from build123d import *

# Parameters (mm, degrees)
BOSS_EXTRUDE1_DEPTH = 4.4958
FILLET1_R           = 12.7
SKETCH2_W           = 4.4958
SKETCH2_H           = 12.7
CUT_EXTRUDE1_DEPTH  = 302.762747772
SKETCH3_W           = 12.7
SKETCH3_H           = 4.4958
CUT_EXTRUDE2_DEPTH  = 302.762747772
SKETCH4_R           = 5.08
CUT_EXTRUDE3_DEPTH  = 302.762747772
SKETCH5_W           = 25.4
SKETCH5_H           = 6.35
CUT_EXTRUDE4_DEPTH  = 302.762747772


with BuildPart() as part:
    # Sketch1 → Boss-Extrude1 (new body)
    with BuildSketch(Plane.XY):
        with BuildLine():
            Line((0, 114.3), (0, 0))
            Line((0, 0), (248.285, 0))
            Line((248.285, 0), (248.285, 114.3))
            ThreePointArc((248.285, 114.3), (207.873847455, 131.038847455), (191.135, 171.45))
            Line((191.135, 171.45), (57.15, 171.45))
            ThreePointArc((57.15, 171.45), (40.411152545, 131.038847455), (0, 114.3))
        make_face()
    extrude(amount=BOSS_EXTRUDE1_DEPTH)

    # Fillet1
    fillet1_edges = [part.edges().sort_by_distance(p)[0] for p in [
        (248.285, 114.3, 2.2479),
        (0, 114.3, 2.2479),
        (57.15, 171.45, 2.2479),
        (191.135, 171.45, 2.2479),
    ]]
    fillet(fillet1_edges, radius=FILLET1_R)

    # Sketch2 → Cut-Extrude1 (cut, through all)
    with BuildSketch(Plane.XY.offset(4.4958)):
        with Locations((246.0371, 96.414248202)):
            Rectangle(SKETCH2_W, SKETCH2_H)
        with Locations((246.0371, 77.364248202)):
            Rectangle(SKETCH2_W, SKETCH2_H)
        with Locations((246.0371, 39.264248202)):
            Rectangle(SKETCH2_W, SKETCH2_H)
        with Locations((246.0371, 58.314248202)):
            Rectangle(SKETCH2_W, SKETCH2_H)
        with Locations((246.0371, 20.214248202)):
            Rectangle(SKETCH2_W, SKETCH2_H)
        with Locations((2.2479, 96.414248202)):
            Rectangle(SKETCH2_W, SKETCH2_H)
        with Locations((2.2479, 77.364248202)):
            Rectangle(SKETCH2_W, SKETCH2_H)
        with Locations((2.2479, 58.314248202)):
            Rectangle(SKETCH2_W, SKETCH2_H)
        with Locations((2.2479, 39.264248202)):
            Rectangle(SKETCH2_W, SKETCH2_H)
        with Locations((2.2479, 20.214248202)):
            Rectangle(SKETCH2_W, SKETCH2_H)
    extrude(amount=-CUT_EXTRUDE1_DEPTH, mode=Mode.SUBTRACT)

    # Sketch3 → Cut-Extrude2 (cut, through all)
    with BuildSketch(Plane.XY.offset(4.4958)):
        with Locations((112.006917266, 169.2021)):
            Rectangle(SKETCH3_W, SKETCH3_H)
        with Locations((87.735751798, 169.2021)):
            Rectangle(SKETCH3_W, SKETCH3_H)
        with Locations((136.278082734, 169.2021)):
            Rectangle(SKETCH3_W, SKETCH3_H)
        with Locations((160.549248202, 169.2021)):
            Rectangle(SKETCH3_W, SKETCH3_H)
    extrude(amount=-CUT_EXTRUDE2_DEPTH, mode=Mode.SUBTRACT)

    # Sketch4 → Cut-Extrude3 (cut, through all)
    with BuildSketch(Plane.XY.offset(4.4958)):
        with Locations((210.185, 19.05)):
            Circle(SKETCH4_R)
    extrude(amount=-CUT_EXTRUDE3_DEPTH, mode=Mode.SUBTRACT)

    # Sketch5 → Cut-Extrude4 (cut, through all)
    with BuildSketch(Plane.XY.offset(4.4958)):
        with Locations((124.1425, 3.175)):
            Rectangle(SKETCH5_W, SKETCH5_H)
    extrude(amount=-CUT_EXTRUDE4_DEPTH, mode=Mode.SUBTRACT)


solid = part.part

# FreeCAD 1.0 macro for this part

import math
import FreeCAD as App
import Part
import Sketcher
Q = App.Units.Quantity


def edges_at(feature, points):
    """Names of the edges that pass closest to the given points."""
    edges = feature.Shape.Edges
    near = lambda p: min(range(len(edges)), key=lambda i: edges[i].distToShape(Part.Vertex(*p))[0])
    return sorted({f"Edge{near(p) + 1}" for p in points})


def add_polygon(sketch, points):
    """Adds a closed chain of lines whose ends are joined by coincident constraints."""
    first, n = sketch.GeometryCount, len(points)
    for a, b in zip(points, points[1:] + points[:1]):
        sketch.addGeometry(Part.LineSegment(App.Vector(*a, 0), App.Vector(*b, 0)), False)
    for i in range(n):
        sketch.addConstraint(Sketcher.Constraint("Coincident", first + i, 2, first + (i + 1) % n, 1))

doc = App.newDocument("Part")
body = doc.addObject("PartDesign::Body", "Body")

# Sketch on XY plane
sketch1 = body.newObject("Sketcher::SketchObject", "Sketch")
sketch1.AttachmentSupport = (doc.getObject("XY_Plane"), [""])
sketch1.MapMode = "FlatFace"
sketch1.addGeometry([
    Part.LineSegment(App.Vector(0, 114.3, 0), App.Vector(0, 0, 0)),  # 0
    Part.LineSegment(App.Vector(0, 0, 0), App.Vector(248.285, 0, 0)),  # 1
    Part.LineSegment(App.Vector(248.285, 0, 0), App.Vector(248.285, 114.3, 0)),  # 2
    Part.ArcOfCircle(Part.Circle(App.Vector(248.285, 171.45, 0), App.Vector(0, 0, 1), 57.15), math.radians(180), math.radians(270)),  # 3
    Part.LineSegment(App.Vector(191.135, 171.45, 0), App.Vector(57.15, 171.45, 0)),  # 4
    Part.ArcOfCircle(Part.Circle(App.Vector(0, 171.45, 0), App.Vector(0, 0, 1), 57.15), math.radians(-90), math.radians(0)),  # 5
], False)
sketch1.addConstraint([
    Sketcher.Constraint("Coincident", 0, 2, 1, 1),
    Sketcher.Constraint("Coincident", 1, 2, 2, 1),
    Sketcher.Constraint("Coincident", 2, 2, 3, 2),
    Sketcher.Constraint("Coincident", 3, 1, 4, 1),
    Sketcher.Constraint("Coincident", 4, 2, 5, 2),
    Sketcher.Constraint("Coincident", 5, 1, 0, 1),
    Sketcher.Constraint("Vertical", 0),
    Sketcher.Constraint("Horizontal", 1),
    Sketcher.Constraint("Vertical", 2),
    Sketcher.Constraint("Horizontal", 4),
    Sketcher.Constraint("Coincident", 0, 2, -1, 1),
    Sketcher.Constraint("Equal", 3, 5),
    Sketcher.Constraint("PointOnObject", 5, 3, -2),
    Sketcher.Constraint("Horizontal", 3, 3, 5, 3),
    Sketcher.Constraint("Horizontal", 5, 3, 3, 1),
    Sketcher.Constraint("Vertical", 3, 3, 1, 2),
    Sketcher.Constraint("Radius", 3, Q("2.25 in")),
    Sketcher.Constraint("DistanceY", 0, 2, 0, 1, Q("4.5 in")),
    Sketcher.Constraint("DistanceX", 1, 1, 1, 2, Q("9.775 in")),
])
pad1 = body.newObject("PartDesign::Pad", "Pad")
pad1.Profile = sketch1
pad1.Length = Q("0.177 in")
doc.recompute()

fillet = body.newObject("PartDesign::Fillet", "Fillet")
fillet.Base = (pad1, edges_at(pad1, [
    (248.285, 114.3, 2.248),
    (0, 114.3, 2.248),
    (57.15, 171.45, 2.248),
    (191.135, 171.45, 2.248),
]))
fillet.Radius = Q("0.5 in")

# Sketch on XY plane
sketch2 = body.newObject("Sketcher::SketchObject", "Sketch001")
sketch2.AttachmentSupport = (doc.getObject("XY_Plane"), [""])
sketch2.MapMode = "FlatFace"
sketch2.AttachmentOffset = App.Placement(App.Vector(0, 0, 0.177 * 25.4), App.Rotation())
add_polygon(sketch2, [(243.7892, 102.764248), (243.7892, 90.064248), (248.285, 90.064248), (248.285, 102.764248)])  # lines 0-3
add_polygon(sketch2, [(243.7892, 83.714248), (243.7892, 71.014248), (248.285, 71.014248), (248.285, 83.714248)])  # lines 4-7
add_polygon(sketch2, [(243.7892, 45.614248), (243.7892, 32.914248), (248.285, 32.914248), (248.285, 45.614248)])  # lines 8-11
add_polygon(sketch2, [(243.7892, 64.664248), (243.7892, 51.964248), (248.285, 51.964248), (248.285, 64.664248)])  # lines 12-15
add_polygon(sketch2, [(243.7892, 26.564248), (243.7892, 13.864248), (248.285, 13.864248), (248.285, 26.564248)])  # lines 16-19
add_polygon(sketch2, [(0, 102.764248), (0, 90.064248), (4.4958, 90.064248), (4.4958, 102.764248)])  # lines 20-23
add_polygon(sketch2, [(0, 83.714248), (0, 71.014248), (4.4958, 71.014248), (4.4958, 83.714248)])  # lines 24-27
add_polygon(sketch2, [(0, 64.664248), (0, 51.964248), (4.4958, 51.964248), (4.4958, 64.664248)])  # lines 28-31
add_polygon(sketch2, [(0, 45.614248), (0, 32.914248), (4.4958, 32.914248), (4.4958, 45.614248)])  # lines 32-35
add_polygon(sketch2, [(0, 26.564248), (0, 13.864248), (4.4958, 13.864248), (4.4958, 26.564248)])  # lines 36-39
sketch2.addConstraint([
    Sketcher.Constraint("Vertical", 0),
    Sketcher.Constraint("Horizontal", 1),
    Sketcher.Constraint("Vertical", 2),
    Sketcher.Constraint("Horizontal", 3),
    Sketcher.Constraint("Vertical", 4),
    Sketcher.Constraint("Horizontal", 5),
    Sketcher.Constraint("Vertical", 6),
    Sketcher.Constraint("Horizontal", 7),
    Sketcher.Constraint("Vertical", 8),
    Sketcher.Constraint("Horizontal", 9),
    Sketcher.Constraint("Vertical", 10),
    Sketcher.Constraint("Horizontal", 11),
    Sketcher.Constraint("Vertical", 12),
    Sketcher.Constraint("Horizontal", 13),
    Sketcher.Constraint("Vertical", 14),
    Sketcher.Constraint("Horizontal", 15),
    Sketcher.Constraint("Vertical", 16),
    Sketcher.Constraint("Horizontal", 17),
    Sketcher.Constraint("Vertical", 18),
    Sketcher.Constraint("Horizontal", 19),
    Sketcher.Constraint("Vertical", 20),
    Sketcher.Constraint("Horizontal", 21),
    Sketcher.Constraint("Vertical", 22),
    Sketcher.Constraint("Horizontal", 23),
    Sketcher.Constraint("Vertical", 24),
    Sketcher.Constraint("Horizontal", 25),
    Sketcher.Constraint("Vertical", 26),
    Sketcher.Constraint("Horizontal", 27),
    Sketcher.Constraint("Vertical", 28),
    Sketcher.Constraint("Horizontal", 29),
    Sketcher.Constraint("Vertical", 30),
    Sketcher.Constraint("Horizontal", 31),
    Sketcher.Constraint("Vertical", 32),
    Sketcher.Constraint("Horizontal", 33),
    Sketcher.Constraint("Vertical", 34),
    Sketcher.Constraint("Horizontal", 35),
    Sketcher.Constraint("Vertical", 36),
    Sketcher.Constraint("Horizontal", 37),
    Sketcher.Constraint("Vertical", 38),
    Sketcher.Constraint("Horizontal", 39),
    Sketcher.Constraint("PointOnObject", 20, 2, -2),
    Sketcher.Constraint("PointOnObject", 24, 2, -2),
    Sketcher.Constraint("PointOnObject", 28, 2, -2),
    Sketcher.Constraint("PointOnObject", 32, 2, -2),
    Sketcher.Constraint("PointOnObject", 36, 2, -2),
    Sketcher.Constraint("Horizontal", 1, 2, 20, 2),
    Sketcher.Constraint("Horizontal", 3, 2, 22, 2),
    Sketcher.Constraint("Horizontal", 5, 2, 24, 2),
    Sketcher.Constraint("Horizontal", 7, 2, 26, 2),
    Sketcher.Constraint("Horizontal", 13, 2, 28, 2),
    Sketcher.Constraint("Horizontal", 15, 2, 30, 2),
    Sketcher.Constraint("Horizontal", 9, 2, 32, 2),
    Sketcher.Constraint("Horizontal", 11, 2, 34, 2),
    Sketcher.Constraint("Horizontal", 17, 2, 36, 2),
    Sketcher.Constraint("Horizontal", 19, 2, 38, 2),
    Sketcher.Constraint("Vertical", 3, 2, 4, 2),
    Sketcher.Constraint("Vertical", 2, 2, 5, 2),
    Sketcher.Constraint("Vertical", 7, 2, 8, 2),
    Sketcher.Constraint("Vertical", 6, 2, 9, 2),
    Sketcher.Constraint("Vertical", 11, 2, 12, 2),
    Sketcher.Constraint("Vertical", 10, 2, 13, 2),
    Sketcher.Constraint("Vertical", 15, 2, 16, 2),
    Sketcher.Constraint("Vertical", 14, 2, 17, 2),
    Sketcher.Constraint("Vertical", 22, 2, 25, 2),
    Sketcher.Constraint("Vertical", 26, 2, 29, 2),
    Sketcher.Constraint("Vertical", 30, 2, 33, 2),
    Sketcher.Constraint("Vertical", 34, 2, 37, 2),
    Sketcher.Constraint("Equal", 19, 21),
    Sketcher.Constraint("Equal", 2, 4),
    Sketcher.Constraint("Equal", 6, 8),
    Sketcher.Constraint("Equal", 10, 12),
    Sketcher.Constraint("Equal", 14, 16),
    Sketcher.Constraint("DistanceY", 0, 2, 0, 1, Q("0.5 in")),
    Sketcher.Constraint("DistanceY", 8, 2, 7, 2, Q("2 in")),
    Sketcher.Constraint("DistanceY", 15, 2, 20, 2, Q("1 in")),
    Sketcher.Constraint("DistanceY", 16, 2, 12, 2, Q("1.5 in")),
    Sketcher.Constraint("DistanceX", 1, 1, 1, 2, Q("0.177 in")),
    Sketcher.Constraint("DistanceY", 4, 2, 0, 2, Q("0.75 in")),
    Sketcher.Constraint("DistanceX", -1, 1, 0, 2, Q("9.598 in")),
    Sketcher.Constraint("DistanceY", -1, 1, 0, 2, 90.064248),
])
pocket1 = body.newObject("PartDesign::Pocket", "Pocket")
pocket1.Profile = sketch2
pocket1.Type = "ThroughAll"

# Sketch on XY plane
sketch3 = body.newObject("Sketcher::SketchObject", "Sketch002")
sketch3.AttachmentSupport = (doc.getObject("XY_Plane"), [""])
sketch3.MapMode = "FlatFace"
sketch3.AttachmentOffset = App.Placement(App.Vector(0, 0, 0.177 * 25.4), App.Rotation())
add_polygon(sketch3, [(105.656917, 171.45), (105.656917, 166.9542), (118.356917, 166.9542), (118.356917, 171.45)])  # lines 0-3
add_polygon(sketch3, [(81.385752, 171.45), (81.385752, 166.9542), (94.085752, 166.9542), (94.085752, 171.45)])  # lines 4-7
add_polygon(sketch3, [(129.928083, 171.45), (129.928083, 166.9542), (142.628083, 166.9542), (142.628083, 171.45)])  # lines 8-11
add_polygon(sketch3, [(154.199248, 171.45), (154.199248, 166.9542), (166.899248, 166.9542), (166.899248, 171.45)])  # lines 12-15
sketch3.addConstraint([
    Sketcher.Constraint("Vertical", 0),
    Sketcher.Constraint("Horizontal", 1),
    Sketcher.Constraint("Vertical", 2),
    Sketcher.Constraint("Horizontal", 3),
    Sketcher.Constraint("Vertical", 4),
    Sketcher.Constraint("Horizontal", 5),
    Sketcher.Constraint("Vertical", 6),
    Sketcher.Constraint("Horizontal", 7),
    Sketcher.Constraint("Vertical", 8),
    Sketcher.Constraint("Horizontal", 9),
    Sketcher.Constraint("Vertical", 10),
    Sketcher.Constraint("Horizontal", 11),
    Sketcher.Constraint("Vertical", 12),
    Sketcher.Constraint("Horizontal", 13),
    Sketcher.Constraint("Vertical", 14),
    Sketcher.Constraint("Horizontal", 15),
    Sketcher.Constraint("Horizontal", 1, 2, 4, 2),
    Sketcher.Constraint("Horizontal", 3, 2, 6, 2),
    Sketcher.Constraint("Horizontal", 5, 2, 8, 2),
    Sketcher.Constraint("Horizontal", 7, 2, 10, 2),
    Sketcher.Constraint("Horizontal", 9, 2, 12, 2),
    Sketcher.Constraint("Horizontal", 11, 2, 14, 2),
    Sketcher.Constraint("Equal", 3, 5),
    Sketcher.Constraint("Equal", 7, 9),
    Sketcher.Constraint("Equal", 11, 13),
    Sketcher.Constraint("DistanceX", 1, 1, 1, 2, Q("0.5 in")),
    Sketcher.Constraint("DistanceY", 0, 2, 0, 1, Q("0.177 in")),
    Sketcher.Constraint("DistanceY", -1, 1, 2, 2, Q("6.75 in")),
    Sketcher.Constraint("DistanceX", -1, 1, 4, 2, 81.385752),
    Sketcher.Constraint("DistanceX", -1, 1, 12, 2, 154.199248),
    Sketcher.Constraint("DistanceX", 5, 2, 8, 2, 35.842331),
    Sketcher.Constraint("DistanceX", 1, 2, 12, 2, 35.842331),
])
pocket2 = body.newObject("PartDesign::Pocket", "Pocket001")
pocket2.Profile = sketch3
pocket2.Type = "ThroughAll"

# Sketch on XY plane
sketch4 = body.newObject("Sketcher::SketchObject", "Sketch003")
sketch4.AttachmentSupport = (doc.getObject("XY_Plane"), [""])
sketch4.MapMode = "FlatFace"
sketch4.AttachmentOffset = App.Placement(App.Vector(0, 0, 0.177 * 25.4), App.Rotation())
sketch4.addGeometry(Part.Circle(App.Vector(210.185, 19.05, 0), App.Vector(0, 0, 1), 5.08), False)
sketch4.addConstraint([
    Sketcher.Constraint("Diameter", 0, Q("0.4 in")),
    Sketcher.Constraint("DistanceY", -1, 1, 0, 3, Q("0.75 in")),
    Sketcher.Constraint("DistanceX", -1, 1, 0, 3, Q("8.275 in")),
])
pocket3 = body.newObject("PartDesign::Pocket", "Pocket002")
pocket3.Profile = sketch4
pocket3.Type = "ThroughAll"

# Sketch on XY plane
sketch5 = body.newObject("Sketcher::SketchObject", "Sketch004")
sketch5.AttachmentSupport = (doc.getObject("XY_Plane"), [""])
sketch5.MapMode = "FlatFace"
sketch5.AttachmentOffset = App.Placement(App.Vector(0, 0, 0.177 * 25.4), App.Rotation())
add_polygon(sketch5, [(111.4425, 6.35), (111.4425, 0), (136.8425, 0), (136.8425, 6.35)])  # lines 0-3
sketch5.addConstraint([
    Sketcher.Constraint("Vertical", 0),
    Sketcher.Constraint("Horizontal", 1),
    Sketcher.Constraint("Vertical", 2),
    Sketcher.Constraint("Horizontal", 3),
    Sketcher.Constraint("PointOnObject", 0, 2, -1),
    Sketcher.Constraint("DistanceX", 1, 1, 1, 2, Q("1 in")),
    Sketcher.Constraint("DistanceY", 0, 2, 0, 1, Q("0.25 in")),
    Sketcher.Constraint("DistanceX", -1, 1, 0, 2, Q("4.3875 in")),
])
pocket4 = body.newObject("PartDesign::Pocket", "Pocket003")
pocket4.Profile = sketch5
pocket4.Type = "ThroughAll"

doc.recompute()
